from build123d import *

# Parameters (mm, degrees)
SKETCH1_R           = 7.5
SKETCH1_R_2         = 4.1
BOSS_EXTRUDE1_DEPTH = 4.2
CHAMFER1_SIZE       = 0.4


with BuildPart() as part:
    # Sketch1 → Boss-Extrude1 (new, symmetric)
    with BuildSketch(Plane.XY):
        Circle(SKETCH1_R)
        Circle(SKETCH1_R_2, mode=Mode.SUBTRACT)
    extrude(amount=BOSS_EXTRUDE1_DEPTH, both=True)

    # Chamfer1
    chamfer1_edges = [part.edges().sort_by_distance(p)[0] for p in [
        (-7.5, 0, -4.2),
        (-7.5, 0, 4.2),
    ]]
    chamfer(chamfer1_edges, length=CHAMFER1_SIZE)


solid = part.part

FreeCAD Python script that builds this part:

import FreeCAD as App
import Part
import Sketcher
from FreeCAD import Vector
Q = App.Units.Quantity


def edges_at(feature, points):
    """Names of the edges that pass closest to the given points."""
    edges = feature.Shape.Edges
    near = lambda p: min(range(len(edges)), key=lambda i: edges[i].distToShape(Part.Vertex(*p))[0])
    return sorted({f"Edge{near(p) + 1}" for p in points})

doc = App.newDocument("Part")
body = doc.addObject("PartDesign::Body", "Body")

# Sketch on XY plane
sketch1 = body.newObject("Sketcher::SketchObject", "Sketch")
sketch1.AttachmentSupport = (doc.getObject("XY_Plane"), [""])
sketch1.MapMode = "FlatFace"
sketch1.addGeometry([
    Part.Circle(Vector(0, 0, 0), Vector(0, 0, 1), 7.5),
    Part.Circle(Vector(0, 0, 0), Vector(0, 0, 1), 4.1),
], False)
sketch1.addConstraint([
    Sketcher.Constraint("Coincident", 0, 3, -1, 1),
    Sketcher.Constraint("Coincident", 1, 3, -1, 1),
    Sketcher.Constraint("Diameter", 0, Q("15 mm")),
    Sketcher.Constraint("Diameter", 1, Q("8.2 mm")),
])
pad1 = body.newObject("PartDesign::Pad", "Pad")
pad1.Profile = sketch1
pad1.Length = 8.4
pad1.Midplane = True
doc.recompute()

chamfer = body.newObject("PartDesign::Chamfer", "Chamfer")
chamfer.Base = (pad1, edges_at(pad1, [(-7.5, 0, -4.2), (-7.5, 0, 4.2)]))
chamfer.Size = 0.4

doc.recompute()
